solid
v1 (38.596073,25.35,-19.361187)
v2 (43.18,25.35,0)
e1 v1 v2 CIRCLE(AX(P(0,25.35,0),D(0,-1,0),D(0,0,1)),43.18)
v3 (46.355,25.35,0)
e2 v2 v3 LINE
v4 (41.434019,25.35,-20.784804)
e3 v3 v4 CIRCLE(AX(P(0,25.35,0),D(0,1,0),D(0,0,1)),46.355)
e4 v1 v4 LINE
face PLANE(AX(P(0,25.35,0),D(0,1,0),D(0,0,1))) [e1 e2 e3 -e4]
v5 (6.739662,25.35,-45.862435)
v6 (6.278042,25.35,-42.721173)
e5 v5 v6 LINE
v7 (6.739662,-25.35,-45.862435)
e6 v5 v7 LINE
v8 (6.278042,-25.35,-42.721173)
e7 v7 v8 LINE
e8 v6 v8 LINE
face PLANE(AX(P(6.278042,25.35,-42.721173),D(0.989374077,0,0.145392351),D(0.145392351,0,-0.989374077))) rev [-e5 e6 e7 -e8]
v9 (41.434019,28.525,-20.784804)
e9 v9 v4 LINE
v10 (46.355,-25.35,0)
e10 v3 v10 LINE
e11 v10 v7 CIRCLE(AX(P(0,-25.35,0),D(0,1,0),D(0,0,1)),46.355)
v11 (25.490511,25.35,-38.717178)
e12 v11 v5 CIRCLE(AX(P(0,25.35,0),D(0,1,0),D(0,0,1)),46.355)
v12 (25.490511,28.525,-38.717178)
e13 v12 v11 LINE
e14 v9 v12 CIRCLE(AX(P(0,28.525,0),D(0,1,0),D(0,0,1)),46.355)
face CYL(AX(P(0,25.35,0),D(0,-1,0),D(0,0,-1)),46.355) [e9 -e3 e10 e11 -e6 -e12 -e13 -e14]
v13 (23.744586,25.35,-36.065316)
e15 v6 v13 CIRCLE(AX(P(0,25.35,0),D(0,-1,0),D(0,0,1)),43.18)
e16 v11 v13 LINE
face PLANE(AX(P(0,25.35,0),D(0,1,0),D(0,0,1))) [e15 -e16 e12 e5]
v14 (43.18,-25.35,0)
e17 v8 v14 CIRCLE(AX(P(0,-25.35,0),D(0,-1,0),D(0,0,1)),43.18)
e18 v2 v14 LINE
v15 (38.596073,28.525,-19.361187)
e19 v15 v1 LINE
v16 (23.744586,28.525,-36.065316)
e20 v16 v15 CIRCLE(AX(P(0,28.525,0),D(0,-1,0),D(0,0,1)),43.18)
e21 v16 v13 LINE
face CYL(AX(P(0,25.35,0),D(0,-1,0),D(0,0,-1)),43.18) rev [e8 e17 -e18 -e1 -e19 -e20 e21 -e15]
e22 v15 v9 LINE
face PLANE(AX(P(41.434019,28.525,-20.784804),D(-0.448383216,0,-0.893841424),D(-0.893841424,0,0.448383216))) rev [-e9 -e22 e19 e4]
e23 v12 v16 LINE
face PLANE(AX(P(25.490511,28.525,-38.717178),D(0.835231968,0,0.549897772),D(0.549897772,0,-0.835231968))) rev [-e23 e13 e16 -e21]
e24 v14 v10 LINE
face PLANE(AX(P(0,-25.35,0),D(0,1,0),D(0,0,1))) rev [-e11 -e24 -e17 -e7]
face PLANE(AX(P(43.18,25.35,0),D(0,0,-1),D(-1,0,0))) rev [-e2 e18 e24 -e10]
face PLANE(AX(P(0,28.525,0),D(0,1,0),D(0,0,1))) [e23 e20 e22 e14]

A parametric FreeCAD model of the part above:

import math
import FreeCAD as App
import Part
import Sketcher
from FreeCAD import Vector
Q = App.Units.Quantity

doc = App.newDocument("Part")
body = doc.addObject("PartDesign::Body", "Body")

# Sketch on XZ plane
sketch1 = doc.addObject("Sketcher::SketchObject", "Sketch")
body.addObject(sketch1)
sketch1.AttachmentSupport = (doc.XZ_Plane, [""])
sketch1.MapMode = "FlatFace"
sketch1.addGeometry(Part.LineSegment(Vector(6.7, -45.9, 0), Vector(6.3, -42.7, 0)), False)
sketch1.addGeometry(Part.ArcOfCircle(Part.Circle(Vector(0, 0, 0), Vector(0, 0, 1), 43.2), math.radians(-82), math.radians(0)), False)
sketch1.addGeometry(Part.LineSegment(Vector(43.2, 0, 0), Vector(46.4, 0, 0)), False)
sketch1.addGeometry(Part.ArcOfCircle(Part.Circle(Vector(0, 0, 0), Vector(0, 0, 1), 46.4), math.radians(-82), math.radians(0)), False)
sketch1.addConstraint(Sketcher.Constraint("Coincident", 0, 2, 1, 1))
sketch1.addConstraint(Sketcher.Constraint("Coincident", 1, 2, 2, 1))
sketch1.addConstraint(Sketcher.Constraint("Coincident", 2, 2, 3, 2))
sketch1.addConstraint(Sketcher.Constraint("Coincident", 3, 1, 0, 1))
sketch1.addConstraint(Sketcher.Constraint("Horizontal", 2))
sketch1.addConstraint(Sketcher.Constraint("Coincident", 1, 3, -1, 1))
sketch1.addConstraint(Sketcher.Constraint("Coincident", 3, 3, -1, 1))
sketch1.addConstraint(Sketcher.Constraint("PointOnObject", 1, 2, -1))
sketch1.addConstraint(Sketcher.Constraint("Radius", 1, Q("1.7 in")))
sketch1.addConstraint(Sketcher.Constraint("Radius", 3, Q("1.825 in")))
sketch1.addConstraint(Sketcher.Constraint("Angle", 0, Q("98.36 deg")))
sketch1.addConstraint(Sketcher.Constraint("DistanceX", -1, 1, 0, 2, Q("6.278042 mm")))
pad1 = doc.addObject("PartDesign::Pad", "Pad")
body.addObject(pad1)
pad1.Profile = sketch1
pad1.Length = 50.7
pad1.Midplane = True

# Sketch on XZ plane
sketch2 = doc.addObject("Sketcher::SketchObject", "Sketch001")
body.addObject(sketch2)
sketch2.AttachmentSupport = (doc.XZ_Plane, [""])
sketch2.MapMode = "FlatFace"
sketch2.AttachmentOffset = App.Placement(Vector(0, 0, -28.525), App.Rotation())
sketch2.addGeometry(Part.LineSegment(Vector(38.6, -19.4, 0), Vector(41.4, -20.8, 0)), False)
sketch2.addGeometry(Part.ArcOfCircle(Part.Circle(Vector(0, 0, 0), Vector(0, 0, 1), 46.4), math.radians(-57), math.radians(-27)), False)
sketch2.addGeometry(Part.LineSegment(Vector(25.5, -38.7, 0), Vector(23.7, -36.1, 0)), False)
sketch2.addGeometry(Part.ArcOfCircle(Part.Circle(Vector(0, 0, 0), Vector(0, 0, 1), 43.2), math.radians(-57), math.radians(-27)), False)
sketch2.addConstraint(Sketcher.Constraint("Coincident", 0, 2, 1, 2))
sketch2.addConstraint(Sketcher.Constraint("Coincident", 1, 1, 2, 1))
sketch2.addConstraint(Sketcher.Constraint("Coincident", 2, 2, 3, 1))
sketch2.addConstraint(Sketcher.Constraint("Coincident", 3, 2, 0, 1))
sketch2.addConstraint(Sketcher.Constraint("Coincident", 1, 3, -1, 1))
sketch2.addConstraint(Sketcher.Constraint("Coincident", 3, 3, -1, 1))
sketch2.addConstraint(Sketcher.Constraint("Radius", 3, Q("1.7 in")))
sketch2.addConstraint(Sketcher.Constraint("Radius", 1, Q("1.825 in")))
sketch2.addConstraint(Sketcher.Constraint("Angle", 0, Q("-26.64 deg")))
sketch2.addConstraint(Sketcher.Constraint("Angle", 2, Q("123.36 deg")))
sketch2.addConstraint(Sketcher.Constraint("DistanceX", -1, 1, 0, 2, Q("41.434019 mm")))
sketch2.addConstraint(Sketcher.Constraint("DistanceX", -1, 1, 1, 1, Q("25.490511 mm")))
pad2 = doc.addObject("PartDesign::Pad", "Pad001")
body.addObject(pad2)
pad2.Profile = sketch2
pad2.Length = Q("0.125 in")

doc.recompute()
